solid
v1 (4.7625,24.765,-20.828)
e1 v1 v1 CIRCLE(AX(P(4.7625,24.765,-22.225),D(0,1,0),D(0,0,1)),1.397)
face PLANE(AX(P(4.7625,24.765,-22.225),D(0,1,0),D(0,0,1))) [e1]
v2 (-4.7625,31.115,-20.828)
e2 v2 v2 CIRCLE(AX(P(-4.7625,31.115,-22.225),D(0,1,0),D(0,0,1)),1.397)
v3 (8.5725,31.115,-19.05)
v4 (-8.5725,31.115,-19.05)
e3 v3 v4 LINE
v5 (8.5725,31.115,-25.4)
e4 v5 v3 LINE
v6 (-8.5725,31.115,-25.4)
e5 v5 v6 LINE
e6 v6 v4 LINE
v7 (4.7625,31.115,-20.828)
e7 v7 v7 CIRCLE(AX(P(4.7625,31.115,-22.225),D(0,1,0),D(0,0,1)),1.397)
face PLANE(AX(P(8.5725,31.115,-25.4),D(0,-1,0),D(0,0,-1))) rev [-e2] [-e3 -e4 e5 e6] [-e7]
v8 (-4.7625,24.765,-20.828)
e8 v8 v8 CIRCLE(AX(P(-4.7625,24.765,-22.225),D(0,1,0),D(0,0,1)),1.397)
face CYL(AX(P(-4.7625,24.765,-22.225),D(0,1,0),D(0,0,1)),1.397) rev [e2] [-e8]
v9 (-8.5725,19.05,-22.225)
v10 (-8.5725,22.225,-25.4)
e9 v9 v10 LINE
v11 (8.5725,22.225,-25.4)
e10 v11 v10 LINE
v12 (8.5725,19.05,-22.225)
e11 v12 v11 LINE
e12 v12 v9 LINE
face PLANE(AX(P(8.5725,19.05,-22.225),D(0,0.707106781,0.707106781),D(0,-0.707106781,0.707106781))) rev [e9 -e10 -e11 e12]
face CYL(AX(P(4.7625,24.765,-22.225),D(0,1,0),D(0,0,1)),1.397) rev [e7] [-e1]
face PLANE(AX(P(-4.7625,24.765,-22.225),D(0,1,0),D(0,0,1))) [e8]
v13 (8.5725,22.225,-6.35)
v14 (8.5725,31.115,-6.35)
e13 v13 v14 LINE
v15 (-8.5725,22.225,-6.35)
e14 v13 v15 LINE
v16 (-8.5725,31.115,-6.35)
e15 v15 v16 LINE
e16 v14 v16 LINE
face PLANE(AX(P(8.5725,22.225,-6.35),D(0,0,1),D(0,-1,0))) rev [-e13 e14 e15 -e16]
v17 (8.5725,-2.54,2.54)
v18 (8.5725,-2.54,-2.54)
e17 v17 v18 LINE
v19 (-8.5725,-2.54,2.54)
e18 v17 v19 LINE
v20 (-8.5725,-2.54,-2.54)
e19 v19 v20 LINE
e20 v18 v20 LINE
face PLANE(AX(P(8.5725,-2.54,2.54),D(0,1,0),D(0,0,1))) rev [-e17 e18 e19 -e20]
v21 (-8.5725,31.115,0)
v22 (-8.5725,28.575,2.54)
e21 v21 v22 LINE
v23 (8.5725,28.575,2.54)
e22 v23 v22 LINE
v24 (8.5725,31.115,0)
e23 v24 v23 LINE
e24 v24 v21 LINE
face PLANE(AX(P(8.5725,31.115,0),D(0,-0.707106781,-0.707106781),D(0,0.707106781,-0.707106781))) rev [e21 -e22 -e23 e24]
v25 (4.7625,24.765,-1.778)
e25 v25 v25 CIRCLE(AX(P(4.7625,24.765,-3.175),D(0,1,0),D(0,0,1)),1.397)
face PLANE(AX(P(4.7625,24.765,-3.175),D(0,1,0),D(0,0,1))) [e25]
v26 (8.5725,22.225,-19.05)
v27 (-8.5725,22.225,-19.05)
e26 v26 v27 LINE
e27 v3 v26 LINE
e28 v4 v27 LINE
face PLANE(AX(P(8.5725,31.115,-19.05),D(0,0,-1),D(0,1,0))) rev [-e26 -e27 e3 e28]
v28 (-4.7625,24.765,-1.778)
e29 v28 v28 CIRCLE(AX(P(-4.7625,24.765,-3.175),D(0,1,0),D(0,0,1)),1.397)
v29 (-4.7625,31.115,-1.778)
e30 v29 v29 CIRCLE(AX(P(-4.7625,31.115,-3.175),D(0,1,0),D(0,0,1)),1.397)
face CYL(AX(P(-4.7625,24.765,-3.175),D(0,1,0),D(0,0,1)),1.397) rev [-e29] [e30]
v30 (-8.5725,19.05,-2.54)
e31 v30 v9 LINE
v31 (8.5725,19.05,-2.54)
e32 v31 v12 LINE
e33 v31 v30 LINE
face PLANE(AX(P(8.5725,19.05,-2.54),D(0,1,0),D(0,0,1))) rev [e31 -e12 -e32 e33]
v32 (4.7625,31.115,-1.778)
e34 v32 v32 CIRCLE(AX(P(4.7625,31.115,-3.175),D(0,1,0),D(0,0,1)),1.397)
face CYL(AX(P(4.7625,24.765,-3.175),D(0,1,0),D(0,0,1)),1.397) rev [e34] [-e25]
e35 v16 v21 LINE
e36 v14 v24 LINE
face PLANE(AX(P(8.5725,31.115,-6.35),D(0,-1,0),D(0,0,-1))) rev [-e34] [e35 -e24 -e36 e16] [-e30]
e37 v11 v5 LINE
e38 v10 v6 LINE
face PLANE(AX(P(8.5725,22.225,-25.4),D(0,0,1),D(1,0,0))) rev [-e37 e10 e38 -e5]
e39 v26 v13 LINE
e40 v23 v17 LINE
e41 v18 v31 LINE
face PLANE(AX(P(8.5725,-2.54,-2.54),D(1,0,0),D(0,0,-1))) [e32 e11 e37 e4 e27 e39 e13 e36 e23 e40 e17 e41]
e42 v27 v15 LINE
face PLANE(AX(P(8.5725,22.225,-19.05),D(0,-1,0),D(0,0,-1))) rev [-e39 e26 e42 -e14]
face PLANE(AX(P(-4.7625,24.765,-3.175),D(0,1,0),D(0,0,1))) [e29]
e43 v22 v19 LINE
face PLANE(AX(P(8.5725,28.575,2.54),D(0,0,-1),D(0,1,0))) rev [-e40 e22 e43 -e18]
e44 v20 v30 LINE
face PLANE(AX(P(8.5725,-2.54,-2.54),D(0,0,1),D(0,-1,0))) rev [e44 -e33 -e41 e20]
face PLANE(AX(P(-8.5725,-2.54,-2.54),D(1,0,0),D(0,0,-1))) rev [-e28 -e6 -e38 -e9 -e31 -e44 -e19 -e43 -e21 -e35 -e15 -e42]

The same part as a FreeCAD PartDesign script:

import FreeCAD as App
import Part
import Sketcher

V = App.Vector
Q = App.Units.Quantity


def add_polygon(sketch, points):
    """Adds a closed chain of lines whose ends are joined by coincident constraints."""
    first, n = sketch.GeometryCount, len(points)
    for a, b in zip(points, points[1:] + points[:1]):
        sketch.addGeometry(Part.LineSegment(App.Vector(*a, 0), App.Vector(*b, 0)), False)
    for i in range(n):
        sketch.addConstraint(Sketcher.Constraint("Coincident", first + i, 2, first + (i + 1) % n, 1))

doc = App.newDocument("Part")
body = doc.addObject("PartDesign::Body", "Body")

sketch1 = doc.addObject("Sketcher::SketchObject", "Sketch")
body.addObject(sketch1)
sketch1.AttachmentSupport = (doc.YZ_Plane, [""])
sketch1.MapMode = "FlatFace"
add_polygon(sketch1, [(28.575, 2.54), (-2.54, 2.54), (-2.54, -2.54), (19.05, -2.54), (19.05, -22.225), (22.225, -25.4), (31.115, -25.4), (31.115, -19.05), (22.225, -19.05), (22.225, -6.35), (31.115, -6.35), (31.115, 0)])
sketch1.addConstraint([
    Sketcher.Constraint("Horizontal", 0),
    Sketcher.Constraint("Vertical", 1),
    Sketcher.Constraint("Horizontal", 2),
    Sketcher.Constraint("Vertical", 3),
    Sketcher.Constraint("Horizontal", 5),
    Sketcher.Constraint("Vertical", 6),
    Sketcher.Constraint("Horizontal", 7),
    Sketcher.Constraint("Vertical", 8),
    Sketcher.Constraint("Horizontal", 9),
    Sketcher.Constraint("Vertical", 10),
    Sketcher.Constraint("PointOnObject", 10, 2, -1),
    Sketcher.Constraint("Parallel", 4, 11),
    Sketcher.Constraint("Vertical", 4, 2, 7, 2),
    Sketcher.Constraint("Vertical", 6, 2, 9, 2),
    Sketcher.Constraint("Equal", 6, 10),
    Sketcher.Constraint("DistanceY", 1, 2, 1, 1, Q("0.2 in")),
    Sketcher.Constraint("DistanceY", 8, 1, 8, 2, Q("0.5 in")),
    Sketcher.Constraint("DistanceY", 4, 2, -1, 1, Q("1 in")),
    Sketcher.Constraint("Angle", 4, Q("-45 deg")),
    Sketcher.Constraint("DistanceX", 2, 1, 2, 2, Q("0.85 in")),
    Sketcher.Constraint("DistanceX", 5, 1, 5, 2, Q("0.35 in")),
    Sketcher.Constraint("DistanceX", 0, 2, -1, 1, Q("0.1 in")),
    Sketcher.Constraint("DistanceY", -1, 1, 0, 2, Q("0.1 in")),
    Sketcher.Constraint("DistanceX", 0, 2, 0, 1, Q("1.225 in")),
])
pad1 = doc.addObject("PartDesign::Pad", "Pad")
body.addObject(pad1)
pad1.Profile = sketch1
pad1.Length = Q("0.675 in")
pad1.Midplane = True

sketch2 = doc.addObject("Sketcher::SketchObject", "Sketch001")
body.addObject(sketch2)
sketch2.AttachmentSupport = (doc.XZ_Plane, [""])
sketch2.MapMode = "FlatFace"
sketch2.AttachmentOffset = App.Placement(V(0, 0, -1.225 * 25.4), App.Rotation())
sketch2.addGeometry([
    Part.Circle(V(4.7625, -22.225, 0), V(0, 0, 1), 1.397),
    Part.Circle(V(-4.7625, -22.225, 0), V(0, 0, 1), 1.397),
    Part.Circle(V(4.7625, -3.175, 0), V(0, 0, 1), 1.397),
    Part.Circle(V(-4.7625, -3.175, 0), V(0, 0, 1), 1.397),
], False)
sketch2.addConstraint([
    Sketcher.Constraint("Equal", 0, 1),
    Sketcher.Constraint("Equal", 1, 2),
    Sketcher.Constraint("Equal", 2, 3),
    Sketcher.Constraint("Symmetric", 0, 3, 1, 3, -2),
    Sketcher.Constraint("Symmetric", 2, 3, 3, 3, -2),
    Sketcher.Constraint("Vertical", 0, 3, 2, 3),
    Sketcher.Constraint("Diameter", 0, Q("0.11 in")),
    Sketcher.Constraint("DistanceY", 0, 3, 2, 3, Q("0.75 in")),
    Sketcher.Constraint("DistanceX", -1, 1, 0, 3, Q("0.1875 in")),
    Sketcher.Constraint("DistanceY", 0, 3, -1, 1, Q("0.875 in")),
])
pocket1 = doc.addObject("PartDesign::Pocket", "Pocket")
body.addObject(pocket1)
pocket1.Profile = sketch2
pocket1.Length = Q("0.25 in")
pocket1.Reversed = True

doc.recompute()
